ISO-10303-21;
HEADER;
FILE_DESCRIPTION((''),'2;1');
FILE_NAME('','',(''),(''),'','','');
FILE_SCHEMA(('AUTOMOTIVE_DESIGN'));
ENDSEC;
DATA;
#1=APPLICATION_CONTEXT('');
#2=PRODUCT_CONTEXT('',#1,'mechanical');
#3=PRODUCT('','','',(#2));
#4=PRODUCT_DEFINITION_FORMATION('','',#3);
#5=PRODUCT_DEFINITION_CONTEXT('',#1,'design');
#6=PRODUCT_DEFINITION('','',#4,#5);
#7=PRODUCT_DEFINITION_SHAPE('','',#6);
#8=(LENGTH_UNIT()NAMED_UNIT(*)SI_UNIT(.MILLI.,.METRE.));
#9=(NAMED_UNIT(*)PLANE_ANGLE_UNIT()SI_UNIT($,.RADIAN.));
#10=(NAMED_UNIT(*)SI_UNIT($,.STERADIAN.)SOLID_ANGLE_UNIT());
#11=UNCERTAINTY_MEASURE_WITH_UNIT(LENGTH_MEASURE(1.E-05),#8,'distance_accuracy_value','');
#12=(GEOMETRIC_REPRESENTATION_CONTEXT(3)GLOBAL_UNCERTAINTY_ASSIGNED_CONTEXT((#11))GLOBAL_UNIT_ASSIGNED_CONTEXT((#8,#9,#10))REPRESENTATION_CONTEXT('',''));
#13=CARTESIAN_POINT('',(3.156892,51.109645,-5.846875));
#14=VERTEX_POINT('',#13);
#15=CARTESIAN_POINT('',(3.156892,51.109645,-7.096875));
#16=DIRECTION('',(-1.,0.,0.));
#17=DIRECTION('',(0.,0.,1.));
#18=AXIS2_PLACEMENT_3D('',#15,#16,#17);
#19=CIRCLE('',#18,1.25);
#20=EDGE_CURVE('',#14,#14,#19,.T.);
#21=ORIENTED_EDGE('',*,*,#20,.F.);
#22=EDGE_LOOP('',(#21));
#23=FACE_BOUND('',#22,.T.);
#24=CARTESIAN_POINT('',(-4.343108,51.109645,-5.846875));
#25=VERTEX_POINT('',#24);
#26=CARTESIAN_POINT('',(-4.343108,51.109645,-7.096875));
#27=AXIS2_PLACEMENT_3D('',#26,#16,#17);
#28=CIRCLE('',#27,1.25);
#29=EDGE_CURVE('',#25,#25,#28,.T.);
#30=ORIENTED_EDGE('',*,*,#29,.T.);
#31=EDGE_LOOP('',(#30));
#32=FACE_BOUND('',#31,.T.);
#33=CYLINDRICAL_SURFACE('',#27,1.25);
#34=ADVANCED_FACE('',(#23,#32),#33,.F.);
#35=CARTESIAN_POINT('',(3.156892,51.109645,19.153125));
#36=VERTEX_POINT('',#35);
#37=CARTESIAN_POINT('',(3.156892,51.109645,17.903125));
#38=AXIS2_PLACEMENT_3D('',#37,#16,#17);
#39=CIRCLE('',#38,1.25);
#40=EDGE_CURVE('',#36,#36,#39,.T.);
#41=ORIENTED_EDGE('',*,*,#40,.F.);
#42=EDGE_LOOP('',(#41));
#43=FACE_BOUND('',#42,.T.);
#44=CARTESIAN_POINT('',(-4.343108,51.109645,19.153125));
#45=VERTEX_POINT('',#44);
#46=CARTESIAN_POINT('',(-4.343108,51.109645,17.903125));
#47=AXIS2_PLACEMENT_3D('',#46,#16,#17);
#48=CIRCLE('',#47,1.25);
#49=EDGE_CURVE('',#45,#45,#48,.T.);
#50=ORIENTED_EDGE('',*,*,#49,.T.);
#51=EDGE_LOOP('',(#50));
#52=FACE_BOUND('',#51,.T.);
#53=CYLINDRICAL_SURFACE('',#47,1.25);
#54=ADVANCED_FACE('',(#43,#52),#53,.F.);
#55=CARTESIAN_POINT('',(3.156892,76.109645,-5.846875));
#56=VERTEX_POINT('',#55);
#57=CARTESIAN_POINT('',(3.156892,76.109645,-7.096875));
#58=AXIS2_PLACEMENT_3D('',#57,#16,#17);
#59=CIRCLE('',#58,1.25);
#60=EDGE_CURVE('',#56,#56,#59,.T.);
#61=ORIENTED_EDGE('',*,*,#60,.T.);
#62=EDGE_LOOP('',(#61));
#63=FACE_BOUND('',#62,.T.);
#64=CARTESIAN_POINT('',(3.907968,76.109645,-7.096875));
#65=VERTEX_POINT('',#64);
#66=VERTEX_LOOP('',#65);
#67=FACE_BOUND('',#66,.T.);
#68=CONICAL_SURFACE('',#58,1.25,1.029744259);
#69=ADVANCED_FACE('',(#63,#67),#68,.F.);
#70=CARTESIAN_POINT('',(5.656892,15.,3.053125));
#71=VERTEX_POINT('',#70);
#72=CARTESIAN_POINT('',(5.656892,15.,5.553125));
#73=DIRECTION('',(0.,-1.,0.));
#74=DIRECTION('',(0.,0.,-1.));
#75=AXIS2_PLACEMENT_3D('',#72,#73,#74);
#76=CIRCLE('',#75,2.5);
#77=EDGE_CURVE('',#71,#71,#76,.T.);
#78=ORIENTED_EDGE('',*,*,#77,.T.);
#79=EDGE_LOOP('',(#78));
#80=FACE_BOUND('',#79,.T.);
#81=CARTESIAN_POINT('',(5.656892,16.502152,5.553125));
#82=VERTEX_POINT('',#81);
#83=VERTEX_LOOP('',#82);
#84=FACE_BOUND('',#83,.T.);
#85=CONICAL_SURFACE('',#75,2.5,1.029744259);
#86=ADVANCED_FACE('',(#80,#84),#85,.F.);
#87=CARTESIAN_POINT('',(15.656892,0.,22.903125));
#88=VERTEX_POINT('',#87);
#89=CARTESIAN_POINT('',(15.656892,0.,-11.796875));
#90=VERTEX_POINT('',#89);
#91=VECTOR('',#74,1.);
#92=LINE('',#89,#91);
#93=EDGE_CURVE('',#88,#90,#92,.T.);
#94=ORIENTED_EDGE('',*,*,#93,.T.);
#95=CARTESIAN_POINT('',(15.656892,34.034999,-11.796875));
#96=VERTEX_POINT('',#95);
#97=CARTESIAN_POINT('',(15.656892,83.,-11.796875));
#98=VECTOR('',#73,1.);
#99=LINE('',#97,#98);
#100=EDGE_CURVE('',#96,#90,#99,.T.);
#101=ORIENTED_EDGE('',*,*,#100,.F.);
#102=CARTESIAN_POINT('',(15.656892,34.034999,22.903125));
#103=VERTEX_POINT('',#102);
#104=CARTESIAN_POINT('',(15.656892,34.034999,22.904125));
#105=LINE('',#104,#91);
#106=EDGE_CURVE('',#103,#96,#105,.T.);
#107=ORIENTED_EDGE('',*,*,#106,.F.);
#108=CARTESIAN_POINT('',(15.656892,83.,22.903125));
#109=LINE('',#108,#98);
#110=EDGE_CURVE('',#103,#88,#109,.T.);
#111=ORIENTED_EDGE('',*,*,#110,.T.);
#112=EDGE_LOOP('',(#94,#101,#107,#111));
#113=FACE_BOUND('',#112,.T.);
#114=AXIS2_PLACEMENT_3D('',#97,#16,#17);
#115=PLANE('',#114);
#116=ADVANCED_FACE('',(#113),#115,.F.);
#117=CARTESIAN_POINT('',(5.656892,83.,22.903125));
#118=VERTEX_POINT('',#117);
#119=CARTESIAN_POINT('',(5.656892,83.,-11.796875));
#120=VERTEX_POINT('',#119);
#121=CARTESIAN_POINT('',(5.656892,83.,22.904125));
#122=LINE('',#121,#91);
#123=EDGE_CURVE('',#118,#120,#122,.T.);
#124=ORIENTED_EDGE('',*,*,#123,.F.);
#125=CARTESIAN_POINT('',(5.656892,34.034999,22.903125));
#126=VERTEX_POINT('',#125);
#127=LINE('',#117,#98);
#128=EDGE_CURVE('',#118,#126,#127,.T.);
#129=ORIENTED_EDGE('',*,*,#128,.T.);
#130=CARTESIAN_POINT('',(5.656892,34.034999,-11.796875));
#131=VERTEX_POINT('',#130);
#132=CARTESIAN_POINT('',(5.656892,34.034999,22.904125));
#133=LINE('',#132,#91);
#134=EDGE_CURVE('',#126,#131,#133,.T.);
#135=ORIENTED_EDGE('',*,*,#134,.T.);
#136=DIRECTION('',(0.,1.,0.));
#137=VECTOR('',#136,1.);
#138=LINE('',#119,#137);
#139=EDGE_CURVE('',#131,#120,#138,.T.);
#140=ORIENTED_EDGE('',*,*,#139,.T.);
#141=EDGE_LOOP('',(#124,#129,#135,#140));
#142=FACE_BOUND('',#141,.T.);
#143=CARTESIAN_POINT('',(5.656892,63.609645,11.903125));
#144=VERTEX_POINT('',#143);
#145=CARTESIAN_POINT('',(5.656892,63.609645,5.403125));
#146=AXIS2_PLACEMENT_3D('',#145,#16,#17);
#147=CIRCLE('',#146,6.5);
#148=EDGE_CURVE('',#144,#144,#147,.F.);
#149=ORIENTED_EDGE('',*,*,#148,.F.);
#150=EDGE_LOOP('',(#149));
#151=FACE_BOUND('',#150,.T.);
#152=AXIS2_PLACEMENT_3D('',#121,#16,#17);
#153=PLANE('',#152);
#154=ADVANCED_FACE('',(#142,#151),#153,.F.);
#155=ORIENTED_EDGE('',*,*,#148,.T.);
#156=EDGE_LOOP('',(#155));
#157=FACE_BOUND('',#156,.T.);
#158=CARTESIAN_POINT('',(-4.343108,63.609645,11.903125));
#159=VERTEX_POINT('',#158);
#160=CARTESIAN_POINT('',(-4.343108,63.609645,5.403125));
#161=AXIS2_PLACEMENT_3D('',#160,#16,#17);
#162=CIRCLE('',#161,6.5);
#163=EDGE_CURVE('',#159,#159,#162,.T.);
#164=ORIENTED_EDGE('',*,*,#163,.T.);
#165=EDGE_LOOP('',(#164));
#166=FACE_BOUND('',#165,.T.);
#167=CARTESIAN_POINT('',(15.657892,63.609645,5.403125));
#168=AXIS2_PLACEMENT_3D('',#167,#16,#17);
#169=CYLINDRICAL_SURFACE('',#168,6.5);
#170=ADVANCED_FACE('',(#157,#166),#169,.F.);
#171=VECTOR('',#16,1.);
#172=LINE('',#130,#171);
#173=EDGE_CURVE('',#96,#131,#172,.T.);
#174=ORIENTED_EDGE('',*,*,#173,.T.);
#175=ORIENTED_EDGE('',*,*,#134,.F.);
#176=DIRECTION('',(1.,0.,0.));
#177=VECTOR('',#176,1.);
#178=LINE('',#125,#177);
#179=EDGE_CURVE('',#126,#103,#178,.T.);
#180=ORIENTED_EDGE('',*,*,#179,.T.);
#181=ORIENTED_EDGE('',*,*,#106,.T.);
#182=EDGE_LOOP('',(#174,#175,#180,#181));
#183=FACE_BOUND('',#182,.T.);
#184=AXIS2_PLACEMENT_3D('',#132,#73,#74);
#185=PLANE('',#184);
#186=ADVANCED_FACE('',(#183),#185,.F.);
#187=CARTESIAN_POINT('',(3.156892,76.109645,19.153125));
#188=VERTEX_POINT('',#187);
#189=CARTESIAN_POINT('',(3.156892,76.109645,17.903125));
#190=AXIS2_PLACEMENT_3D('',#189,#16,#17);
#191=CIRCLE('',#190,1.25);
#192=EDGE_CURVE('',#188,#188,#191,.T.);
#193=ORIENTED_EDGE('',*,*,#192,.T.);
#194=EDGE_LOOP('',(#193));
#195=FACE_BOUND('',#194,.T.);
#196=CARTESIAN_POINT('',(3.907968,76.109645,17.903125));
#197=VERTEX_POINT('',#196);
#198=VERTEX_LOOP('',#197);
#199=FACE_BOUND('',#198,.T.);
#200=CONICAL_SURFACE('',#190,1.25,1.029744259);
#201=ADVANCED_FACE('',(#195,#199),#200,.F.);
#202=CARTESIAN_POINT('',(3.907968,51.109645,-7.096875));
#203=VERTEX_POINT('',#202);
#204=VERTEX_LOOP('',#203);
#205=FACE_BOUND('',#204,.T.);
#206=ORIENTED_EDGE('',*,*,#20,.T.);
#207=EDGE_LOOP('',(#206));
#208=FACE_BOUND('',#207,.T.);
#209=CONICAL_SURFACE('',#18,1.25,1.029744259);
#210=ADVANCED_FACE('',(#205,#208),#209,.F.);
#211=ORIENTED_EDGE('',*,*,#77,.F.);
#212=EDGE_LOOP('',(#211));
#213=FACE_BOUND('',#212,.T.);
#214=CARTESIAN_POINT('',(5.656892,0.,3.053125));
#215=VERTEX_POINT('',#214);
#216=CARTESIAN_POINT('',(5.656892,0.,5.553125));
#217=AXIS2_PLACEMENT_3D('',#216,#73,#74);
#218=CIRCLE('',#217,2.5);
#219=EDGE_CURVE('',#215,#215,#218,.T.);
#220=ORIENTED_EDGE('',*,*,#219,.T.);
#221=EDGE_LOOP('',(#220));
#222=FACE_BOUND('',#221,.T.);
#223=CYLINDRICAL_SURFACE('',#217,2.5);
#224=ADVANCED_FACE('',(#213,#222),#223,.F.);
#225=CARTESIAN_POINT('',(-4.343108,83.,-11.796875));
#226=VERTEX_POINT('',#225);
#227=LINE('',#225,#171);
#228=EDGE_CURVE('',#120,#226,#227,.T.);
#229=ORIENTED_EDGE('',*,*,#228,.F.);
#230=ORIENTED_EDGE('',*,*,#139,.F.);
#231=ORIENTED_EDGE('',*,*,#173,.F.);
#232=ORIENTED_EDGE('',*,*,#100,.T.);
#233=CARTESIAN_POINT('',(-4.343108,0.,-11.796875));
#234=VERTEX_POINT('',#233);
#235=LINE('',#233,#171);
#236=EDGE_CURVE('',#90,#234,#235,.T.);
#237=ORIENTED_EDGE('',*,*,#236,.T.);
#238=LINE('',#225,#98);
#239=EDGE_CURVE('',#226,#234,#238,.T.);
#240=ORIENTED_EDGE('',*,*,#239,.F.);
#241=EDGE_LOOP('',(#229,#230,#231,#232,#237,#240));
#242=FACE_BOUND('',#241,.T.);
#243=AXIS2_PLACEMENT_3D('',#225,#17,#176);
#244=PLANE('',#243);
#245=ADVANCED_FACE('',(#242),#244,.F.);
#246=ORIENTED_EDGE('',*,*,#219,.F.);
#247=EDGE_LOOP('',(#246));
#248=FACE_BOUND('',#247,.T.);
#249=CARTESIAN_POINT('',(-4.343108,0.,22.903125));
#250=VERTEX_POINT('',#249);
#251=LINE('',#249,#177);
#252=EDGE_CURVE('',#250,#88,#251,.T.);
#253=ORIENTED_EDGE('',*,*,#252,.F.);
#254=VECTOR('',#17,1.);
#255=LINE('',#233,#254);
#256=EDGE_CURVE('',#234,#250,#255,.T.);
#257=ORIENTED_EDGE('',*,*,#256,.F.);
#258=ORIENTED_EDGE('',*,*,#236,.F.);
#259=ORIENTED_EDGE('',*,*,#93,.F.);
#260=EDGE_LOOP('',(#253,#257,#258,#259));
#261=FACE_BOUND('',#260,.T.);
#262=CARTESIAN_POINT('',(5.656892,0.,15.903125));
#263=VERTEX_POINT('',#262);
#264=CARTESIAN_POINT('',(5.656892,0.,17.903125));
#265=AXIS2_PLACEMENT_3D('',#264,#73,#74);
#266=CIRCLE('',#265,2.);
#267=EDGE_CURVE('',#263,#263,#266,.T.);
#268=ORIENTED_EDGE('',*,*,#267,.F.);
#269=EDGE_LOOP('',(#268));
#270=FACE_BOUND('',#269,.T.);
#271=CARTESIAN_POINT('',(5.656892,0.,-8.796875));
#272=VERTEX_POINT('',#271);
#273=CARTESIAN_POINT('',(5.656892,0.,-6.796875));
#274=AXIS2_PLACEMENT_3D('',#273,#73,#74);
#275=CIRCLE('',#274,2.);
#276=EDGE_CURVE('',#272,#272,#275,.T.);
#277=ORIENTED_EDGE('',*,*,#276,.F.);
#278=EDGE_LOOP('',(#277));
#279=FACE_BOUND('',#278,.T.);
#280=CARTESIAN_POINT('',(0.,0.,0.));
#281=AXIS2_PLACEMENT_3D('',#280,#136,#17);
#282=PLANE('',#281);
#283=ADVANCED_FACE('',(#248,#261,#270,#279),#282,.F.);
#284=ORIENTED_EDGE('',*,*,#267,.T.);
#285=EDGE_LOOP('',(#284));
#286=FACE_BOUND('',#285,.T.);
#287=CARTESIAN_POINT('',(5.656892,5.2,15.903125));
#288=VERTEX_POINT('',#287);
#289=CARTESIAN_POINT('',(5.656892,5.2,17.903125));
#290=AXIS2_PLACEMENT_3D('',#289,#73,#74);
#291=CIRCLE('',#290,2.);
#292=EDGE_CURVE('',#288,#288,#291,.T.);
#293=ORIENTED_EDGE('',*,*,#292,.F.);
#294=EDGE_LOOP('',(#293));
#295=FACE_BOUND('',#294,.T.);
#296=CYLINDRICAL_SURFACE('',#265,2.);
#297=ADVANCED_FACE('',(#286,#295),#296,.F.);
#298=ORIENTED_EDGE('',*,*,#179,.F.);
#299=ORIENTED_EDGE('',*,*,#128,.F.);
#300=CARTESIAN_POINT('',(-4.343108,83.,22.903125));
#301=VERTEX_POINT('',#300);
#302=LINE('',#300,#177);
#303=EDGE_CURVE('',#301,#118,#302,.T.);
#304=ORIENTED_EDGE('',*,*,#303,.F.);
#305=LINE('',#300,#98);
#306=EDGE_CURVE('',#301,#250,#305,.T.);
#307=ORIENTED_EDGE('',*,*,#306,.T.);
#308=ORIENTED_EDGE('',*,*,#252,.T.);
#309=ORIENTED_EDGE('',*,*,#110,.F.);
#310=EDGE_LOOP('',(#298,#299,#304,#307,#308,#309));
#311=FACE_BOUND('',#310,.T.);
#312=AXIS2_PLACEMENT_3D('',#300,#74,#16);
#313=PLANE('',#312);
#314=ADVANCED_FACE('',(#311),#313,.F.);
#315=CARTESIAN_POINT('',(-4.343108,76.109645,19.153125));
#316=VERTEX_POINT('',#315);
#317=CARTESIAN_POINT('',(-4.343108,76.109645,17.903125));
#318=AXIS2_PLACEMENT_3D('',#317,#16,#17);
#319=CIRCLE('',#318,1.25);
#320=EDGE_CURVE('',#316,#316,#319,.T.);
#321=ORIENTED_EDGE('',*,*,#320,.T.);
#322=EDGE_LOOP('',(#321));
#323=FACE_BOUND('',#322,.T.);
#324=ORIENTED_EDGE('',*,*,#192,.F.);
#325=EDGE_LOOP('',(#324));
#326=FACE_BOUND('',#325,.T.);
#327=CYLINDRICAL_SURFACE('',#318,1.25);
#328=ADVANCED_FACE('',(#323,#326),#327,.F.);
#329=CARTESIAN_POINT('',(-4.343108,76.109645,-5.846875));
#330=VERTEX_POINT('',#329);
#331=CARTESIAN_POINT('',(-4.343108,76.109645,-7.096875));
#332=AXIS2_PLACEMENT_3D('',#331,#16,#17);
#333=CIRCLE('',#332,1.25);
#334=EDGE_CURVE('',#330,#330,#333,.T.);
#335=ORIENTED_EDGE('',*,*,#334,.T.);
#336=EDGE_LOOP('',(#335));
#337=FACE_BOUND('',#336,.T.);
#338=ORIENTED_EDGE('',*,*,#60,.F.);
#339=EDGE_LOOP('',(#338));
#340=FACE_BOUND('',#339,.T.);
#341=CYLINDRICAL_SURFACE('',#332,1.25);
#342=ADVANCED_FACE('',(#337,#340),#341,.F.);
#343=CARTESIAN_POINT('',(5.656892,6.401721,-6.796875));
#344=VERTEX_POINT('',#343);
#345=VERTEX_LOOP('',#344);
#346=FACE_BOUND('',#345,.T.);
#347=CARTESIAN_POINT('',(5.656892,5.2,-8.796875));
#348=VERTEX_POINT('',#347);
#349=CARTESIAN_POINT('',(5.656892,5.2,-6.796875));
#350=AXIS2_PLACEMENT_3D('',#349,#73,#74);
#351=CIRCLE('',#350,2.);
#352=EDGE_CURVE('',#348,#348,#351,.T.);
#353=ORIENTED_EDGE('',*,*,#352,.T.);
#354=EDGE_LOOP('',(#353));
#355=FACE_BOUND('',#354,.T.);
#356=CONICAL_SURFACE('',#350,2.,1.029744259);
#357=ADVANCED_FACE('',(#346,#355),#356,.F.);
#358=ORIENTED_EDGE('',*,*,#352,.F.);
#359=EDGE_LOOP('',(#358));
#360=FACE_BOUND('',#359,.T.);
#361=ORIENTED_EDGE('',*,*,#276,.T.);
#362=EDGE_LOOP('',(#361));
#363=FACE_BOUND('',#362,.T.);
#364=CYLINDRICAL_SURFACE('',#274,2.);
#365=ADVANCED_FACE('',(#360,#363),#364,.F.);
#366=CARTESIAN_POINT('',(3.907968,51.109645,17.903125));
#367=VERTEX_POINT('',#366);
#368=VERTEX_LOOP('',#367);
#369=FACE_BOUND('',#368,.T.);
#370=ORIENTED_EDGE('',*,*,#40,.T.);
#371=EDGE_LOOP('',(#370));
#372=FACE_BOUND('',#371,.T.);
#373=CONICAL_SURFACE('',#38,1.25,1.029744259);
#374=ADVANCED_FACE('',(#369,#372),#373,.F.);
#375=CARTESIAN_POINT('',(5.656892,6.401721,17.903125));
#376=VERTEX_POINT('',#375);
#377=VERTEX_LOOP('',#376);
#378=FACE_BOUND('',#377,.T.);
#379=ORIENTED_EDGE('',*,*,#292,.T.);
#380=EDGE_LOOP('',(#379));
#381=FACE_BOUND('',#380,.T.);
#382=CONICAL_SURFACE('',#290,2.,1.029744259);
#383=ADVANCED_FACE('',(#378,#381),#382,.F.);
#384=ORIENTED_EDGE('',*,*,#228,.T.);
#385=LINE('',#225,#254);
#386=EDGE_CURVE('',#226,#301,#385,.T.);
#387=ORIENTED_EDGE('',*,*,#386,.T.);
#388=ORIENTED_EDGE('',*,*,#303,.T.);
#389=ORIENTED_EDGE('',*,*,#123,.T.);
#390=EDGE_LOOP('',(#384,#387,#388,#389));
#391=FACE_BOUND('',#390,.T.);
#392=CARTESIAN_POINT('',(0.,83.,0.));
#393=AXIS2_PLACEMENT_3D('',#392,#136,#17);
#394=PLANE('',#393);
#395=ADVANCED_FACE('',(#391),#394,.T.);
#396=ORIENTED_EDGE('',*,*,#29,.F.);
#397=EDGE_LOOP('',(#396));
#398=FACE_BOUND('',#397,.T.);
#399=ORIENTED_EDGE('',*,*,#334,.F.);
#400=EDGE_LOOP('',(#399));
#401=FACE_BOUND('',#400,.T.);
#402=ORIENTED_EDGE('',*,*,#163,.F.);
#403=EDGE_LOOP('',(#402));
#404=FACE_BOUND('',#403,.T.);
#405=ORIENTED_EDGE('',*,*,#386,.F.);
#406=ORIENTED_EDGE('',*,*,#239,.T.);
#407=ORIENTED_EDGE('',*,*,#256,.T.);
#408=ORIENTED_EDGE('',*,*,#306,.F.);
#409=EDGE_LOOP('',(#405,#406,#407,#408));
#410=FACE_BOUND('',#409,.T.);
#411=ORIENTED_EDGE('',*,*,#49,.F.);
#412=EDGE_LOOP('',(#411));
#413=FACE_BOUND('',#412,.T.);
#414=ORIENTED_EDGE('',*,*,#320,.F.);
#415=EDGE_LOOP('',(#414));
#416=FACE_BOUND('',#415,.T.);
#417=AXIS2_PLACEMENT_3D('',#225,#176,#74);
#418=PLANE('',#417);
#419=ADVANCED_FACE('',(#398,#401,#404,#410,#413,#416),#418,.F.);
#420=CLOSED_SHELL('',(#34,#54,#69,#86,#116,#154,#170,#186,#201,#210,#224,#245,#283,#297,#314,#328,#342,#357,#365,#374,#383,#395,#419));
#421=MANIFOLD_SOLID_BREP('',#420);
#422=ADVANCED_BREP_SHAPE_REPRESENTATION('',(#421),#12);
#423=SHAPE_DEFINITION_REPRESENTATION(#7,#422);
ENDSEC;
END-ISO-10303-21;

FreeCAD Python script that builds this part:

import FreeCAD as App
import Part
import Sketcher

V = App.Vector


def add_polygon(sketch, points):
    """Adds a closed chain of lines whose ends are joined by coincident constraints."""
    first, n = sketch.GeometryCount, len(points)
    for a, b in zip(points, points[1:] + points[:1]):
        sketch.addGeometry(Part.LineSegment(App.Vector(*a, 0), App.Vector(*b, 0)), False)
    for i in range(n):
        sketch.addConstraint(Sketcher.Constraint("Coincident", first + i, 2, first + (i + 1) % n, 1))

doc = App.newDocument("Part")
params = doc.addObject("Spreadsheet::Sheet", "Params")
for row, (alias, value) in enumerate([
    ("sketch1_width", "20 mm"),
    ("sketch1_height", "34.7 mm"),
    ("pad1_length", "83 mm"),
    ("sketch2_width", "10 mm"),
    ("sketch3_diameter", "13 mm"),
    ("sketch4_diameter", "2.5 mm"),
    ("hole_diameter", "2.5 mm"),
    ("hole_depth", "7.5 mm"),
    ("sketch5_diameter", "5 mm"),
    ("hole2_diameter", "5 mm"),
    ("hole2_depth", "15 mm"),
    ("sketch6_diameter", "4 mm"),
    ("hole3_diameter", "4 mm"),
    ("hole3_depth", "5.2 mm"),
], start=1):
    params.set(f"A{row}", alias)
    params.set(f"B{row}", "=" + value)
    params.setAlias(f"B{row}", alias)

body = doc.addObject("PartDesign::Body", "Body")

# Sketch on XZ plane
sketch1 = body.newObject("Sketcher::SketchObject", "Sketch")
sketch1.AttachmentSupport = (doc.getObject("XZ_Plane"), [""])
sketch1.MapMode = "FlatFace"
add_polygon(sketch1, [(-4.343108, -11.796875), (-4.343108, 22.903125), (15.656892, 22.903125), (15.656892, -11.796875)])  # lines 0-3
sketch1.addConstraint([
    Sketcher.Constraint("Vertical", 0),
    Sketcher.Constraint("Horizontal", 1),
    Sketcher.Constraint("Vertical", 2),
    Sketcher.Constraint("Horizontal", 3),
    Sketcher.Constraint("DistanceX", 1, 1, 1, 2, 20.0),
    Sketcher.Constraint("DistanceY", 0, 1, 0, 2, 34.7),
    Sketcher.Constraint("DistanceX", 0, 2, -1, 1, 4.343108),
    Sketcher.Constraint("DistanceY", -1, 1, 0, 2, 22.903125),
])
sketch1.setExpression("Constraints[8]", "Params.sketch1_width")
sketch1.setExpression("Constraints[9]", "Params.sketch1_height")
pad1 = body.newObject("PartDesign::Pad", "Pad")
pad1.Profile = sketch1
pad1.setExpression("Length", "Params.pad1_length")
pad1.Reversed = True

# Sketch on XY plane
sketch2 = body.newObject("Sketcher::SketchObject", "Sketch001")
sketch2.AttachmentSupport = (doc.getObject("XY_Plane"), [""])
sketch2.MapMode = "FlatFace"
sketch2.AttachmentOffset = App.Placement(V(0, 0, -11.796875), App.Rotation())
add_polygon(sketch2, [(15.656892, 83), (15.656892, 34.034999), (5.656892, 34.034999), (5.656892, 83)])  # lines 0-3
sketch2.addConstraint([
    Sketcher.Constraint("Vertical", 0),
    Sketcher.Constraint("Horizontal", 1),
    Sketcher.Constraint("Vertical", 2),
    Sketcher.Constraint("Horizontal", 3),
    Sketcher.Constraint("DistanceX", 1, 2, 1, 1, 10.0),
    Sketcher.Constraint("DistanceY", -1, 1, 2, 2, 83.0),
    Sketcher.Constraint("DistanceY", 0, 2, 0, 1, 48.965001),
    Sketcher.Constraint("DistanceX", -1, 1, 0, 2, 15.656892),
])
sketch2.setExpression("Constraints[8]", "Params.sketch2_width")
pocket1 = body.newObject("PartDesign::Pocket", "Pocket")
pocket1.Profile = sketch2
pocket1.Type = "UpToFirst"
pocket1.Reversed = True

# Sketch on YZ plane
sketch3 = body.newObject("Sketcher::SketchObject", "Sketch002")
sketch3.AttachmentSupport = (doc.getObject("YZ_Plane"), [""])
sketch3.MapMode = "FlatFace"
sketch3.AttachmentOffset = App.Placement(V(0, 0, -4.343108), App.Rotation())
sketch3.addGeometry(Part.Circle(V(63.609645, 5.403125, 0), V(0, 0, 1), 6.5), False)
sketch3.addConstraint([
    Sketcher.Constraint("Diameter", 0, 13.0),
    Sketcher.Constraint("DistanceX", -1, 1, 0, 3, 63.609645),
    Sketcher.Constraint("DistanceY", -1, 1, 0, 3, 5.403125),
])
sketch3.setExpression("Constraints[0]", "Params.sketch3_diameter")
pocket2 = body.newObject("PartDesign::Pocket", "Pocket001")
pocket2.Profile = sketch3
pocket2.Type = "UpToFirst"
pocket2.Reversed = True

# Sketch on YZ plane
sketch4 = body.newObject("Sketcher::SketchObject", "Sketch003")
sketch4.AttachmentSupport = (doc.getObject("YZ_Plane"), [""])
sketch4.MapMode = "FlatFace"
sketch4.AttachmentOffset = App.Placement(V(0, 0, -4.343108), App.Rotation())
sketch4.addGeometry([
    Part.Circle(V(51.109645, -7.096875, 0), V(0, 0, 1), 1.25),
    Part.Circle(V(51.109645, 17.903125, 0), V(0, 0, 1), 1.25),
    Part.Circle(V(76.109645, 17.903125, 0), V(0, 0, 1), 1.25),
    Part.Circle(V(76.109645, -7.096875, 0), V(0, 0, 1), 1.25),
], False)
sketch4.addConstraint([
    Sketcher.Constraint("Equal", 0, 1),
    Sketcher.Constraint("Equal", 1, 2),
    Sketcher.Constraint("Equal", 2, 3),
    Sketcher.Constraint("Horizontal", 1, 3, 2, 3),
    Sketcher.Constraint("Horizontal", 0, 3, 3, 3),
    Sketcher.Constraint("Vertical", 0, 3, 1, 3),
    Sketcher.Constraint("Vertical", 2, 3, 3, 3),
    Sketcher.Constraint("Diameter", 0, 2.5),
    Sketcher.Constraint("DistanceY", 0, 3, 1, 3, 25.0),
    Sketcher.Constraint("DistanceX", 1, 3, 2, 3, 25.0),
    Sketcher.Constraint("DistanceX", -1, 1, 0, 3, 51.109645),
    Sketcher.Constraint("DistanceY", 0, 3, -1, 1, 7.096875),
])
sketch4.setExpression("Constraints[7]", "Params.sketch4_diameter")
doc.recompute()
hole = body.newObject("PartDesign::Hole", "Hole")
hole.Profile = sketch4
hole.ThreadType = "None"
hole.setExpression("Diameter", "Params.hole_diameter")
hole.DepthType = "Dimension"
hole.setExpression("Depth", "Params.hole_depth")
hole.DrillPoint = "Angled"
hole.DrillPointAngle = 118
hole.Reversed = True

# Sketch on XZ plane
sketch5 = body.newObject("Sketcher::SketchObject", "Sketch004")
sketch5.AttachmentSupport = (doc.getObject("XZ_Plane"), [""])
sketch5.MapMode = "FlatFace"
sketch5.addGeometry(Part.Circle(V(5.656892, 5.553125, 0), V(0, 0, 1), 2.5), False)
sketch5.addConstraint([
    Sketcher.Constraint("Diameter", 0, 5.0),
    Sketcher.Constraint("DistanceX", -1, 1, 0, 3, 5.656892),
    Sketcher.Constraint("DistanceY", -1, 1, 0, 3, 5.553125),
])
sketch5.setExpression("Constraints[0]", "Params.sketch5_diameter")
doc.recompute()
hole2 = body.newObject("PartDesign::Hole", "Hole001")
hole2.Profile = sketch5
hole2.ThreadType = "None"
hole2.setExpression("Diameter", "Params.hole2_diameter")
hole2.DepthType = "Dimension"
hole2.setExpression("Depth", "Params.hole2_depth")
hole2.DrillPoint = "Angled"
hole2.DrillPointAngle = 118

# Sketch on XZ plane
sketch6 = body.newObject("Sketcher::SketchObject", "Sketch005")
sketch6.AttachmentSupport = (doc.getObject("XZ_Plane"), [""])
sketch6.MapMode = "FlatFace"
sketch6.addGeometry([
    Part.Circle(V(5.656892, 17.903125, 0), V(0, 0, 1), 2),
    Part.Circle(V(5.656892, -6.796875, 0), V(0, 0, 1), 2),
], False)
sketch6.addConstraint([
    Sketcher.Constraint("Equal", 0, 1),
    Sketcher.Constraint("Vertical", 0, 3, 1, 3),
    Sketcher.Constraint("Diameter", 0, 4.0),
    Sketcher.Constraint("DistanceY", 1, 3, 0, 3, 24.7),
    Sketcher.Constraint("DistanceX", -1, 1, 0, 3, 5.656892),
    Sketcher.Constraint("DistanceY", -1, 1, 0, 3, 17.903125),
])
sketch6.setExpression("Constraints[2]", "Params.sketch6_diameter")
doc.recompute()
hole3 = body.newObject("PartDesign::Hole", "Hole002")
hole3.Profile = sketch6
hole3.ThreadType = "None"
hole3.setExpression("Diameter", "Params.hole3_diameter")
hole3.DepthType = "Dimension"
hole3.setExpression("Depth", "Params.hole3_depth")
hole3.DrillPoint = "Angled"
hole3.DrillPointAngle = 118

doc.recompute()
